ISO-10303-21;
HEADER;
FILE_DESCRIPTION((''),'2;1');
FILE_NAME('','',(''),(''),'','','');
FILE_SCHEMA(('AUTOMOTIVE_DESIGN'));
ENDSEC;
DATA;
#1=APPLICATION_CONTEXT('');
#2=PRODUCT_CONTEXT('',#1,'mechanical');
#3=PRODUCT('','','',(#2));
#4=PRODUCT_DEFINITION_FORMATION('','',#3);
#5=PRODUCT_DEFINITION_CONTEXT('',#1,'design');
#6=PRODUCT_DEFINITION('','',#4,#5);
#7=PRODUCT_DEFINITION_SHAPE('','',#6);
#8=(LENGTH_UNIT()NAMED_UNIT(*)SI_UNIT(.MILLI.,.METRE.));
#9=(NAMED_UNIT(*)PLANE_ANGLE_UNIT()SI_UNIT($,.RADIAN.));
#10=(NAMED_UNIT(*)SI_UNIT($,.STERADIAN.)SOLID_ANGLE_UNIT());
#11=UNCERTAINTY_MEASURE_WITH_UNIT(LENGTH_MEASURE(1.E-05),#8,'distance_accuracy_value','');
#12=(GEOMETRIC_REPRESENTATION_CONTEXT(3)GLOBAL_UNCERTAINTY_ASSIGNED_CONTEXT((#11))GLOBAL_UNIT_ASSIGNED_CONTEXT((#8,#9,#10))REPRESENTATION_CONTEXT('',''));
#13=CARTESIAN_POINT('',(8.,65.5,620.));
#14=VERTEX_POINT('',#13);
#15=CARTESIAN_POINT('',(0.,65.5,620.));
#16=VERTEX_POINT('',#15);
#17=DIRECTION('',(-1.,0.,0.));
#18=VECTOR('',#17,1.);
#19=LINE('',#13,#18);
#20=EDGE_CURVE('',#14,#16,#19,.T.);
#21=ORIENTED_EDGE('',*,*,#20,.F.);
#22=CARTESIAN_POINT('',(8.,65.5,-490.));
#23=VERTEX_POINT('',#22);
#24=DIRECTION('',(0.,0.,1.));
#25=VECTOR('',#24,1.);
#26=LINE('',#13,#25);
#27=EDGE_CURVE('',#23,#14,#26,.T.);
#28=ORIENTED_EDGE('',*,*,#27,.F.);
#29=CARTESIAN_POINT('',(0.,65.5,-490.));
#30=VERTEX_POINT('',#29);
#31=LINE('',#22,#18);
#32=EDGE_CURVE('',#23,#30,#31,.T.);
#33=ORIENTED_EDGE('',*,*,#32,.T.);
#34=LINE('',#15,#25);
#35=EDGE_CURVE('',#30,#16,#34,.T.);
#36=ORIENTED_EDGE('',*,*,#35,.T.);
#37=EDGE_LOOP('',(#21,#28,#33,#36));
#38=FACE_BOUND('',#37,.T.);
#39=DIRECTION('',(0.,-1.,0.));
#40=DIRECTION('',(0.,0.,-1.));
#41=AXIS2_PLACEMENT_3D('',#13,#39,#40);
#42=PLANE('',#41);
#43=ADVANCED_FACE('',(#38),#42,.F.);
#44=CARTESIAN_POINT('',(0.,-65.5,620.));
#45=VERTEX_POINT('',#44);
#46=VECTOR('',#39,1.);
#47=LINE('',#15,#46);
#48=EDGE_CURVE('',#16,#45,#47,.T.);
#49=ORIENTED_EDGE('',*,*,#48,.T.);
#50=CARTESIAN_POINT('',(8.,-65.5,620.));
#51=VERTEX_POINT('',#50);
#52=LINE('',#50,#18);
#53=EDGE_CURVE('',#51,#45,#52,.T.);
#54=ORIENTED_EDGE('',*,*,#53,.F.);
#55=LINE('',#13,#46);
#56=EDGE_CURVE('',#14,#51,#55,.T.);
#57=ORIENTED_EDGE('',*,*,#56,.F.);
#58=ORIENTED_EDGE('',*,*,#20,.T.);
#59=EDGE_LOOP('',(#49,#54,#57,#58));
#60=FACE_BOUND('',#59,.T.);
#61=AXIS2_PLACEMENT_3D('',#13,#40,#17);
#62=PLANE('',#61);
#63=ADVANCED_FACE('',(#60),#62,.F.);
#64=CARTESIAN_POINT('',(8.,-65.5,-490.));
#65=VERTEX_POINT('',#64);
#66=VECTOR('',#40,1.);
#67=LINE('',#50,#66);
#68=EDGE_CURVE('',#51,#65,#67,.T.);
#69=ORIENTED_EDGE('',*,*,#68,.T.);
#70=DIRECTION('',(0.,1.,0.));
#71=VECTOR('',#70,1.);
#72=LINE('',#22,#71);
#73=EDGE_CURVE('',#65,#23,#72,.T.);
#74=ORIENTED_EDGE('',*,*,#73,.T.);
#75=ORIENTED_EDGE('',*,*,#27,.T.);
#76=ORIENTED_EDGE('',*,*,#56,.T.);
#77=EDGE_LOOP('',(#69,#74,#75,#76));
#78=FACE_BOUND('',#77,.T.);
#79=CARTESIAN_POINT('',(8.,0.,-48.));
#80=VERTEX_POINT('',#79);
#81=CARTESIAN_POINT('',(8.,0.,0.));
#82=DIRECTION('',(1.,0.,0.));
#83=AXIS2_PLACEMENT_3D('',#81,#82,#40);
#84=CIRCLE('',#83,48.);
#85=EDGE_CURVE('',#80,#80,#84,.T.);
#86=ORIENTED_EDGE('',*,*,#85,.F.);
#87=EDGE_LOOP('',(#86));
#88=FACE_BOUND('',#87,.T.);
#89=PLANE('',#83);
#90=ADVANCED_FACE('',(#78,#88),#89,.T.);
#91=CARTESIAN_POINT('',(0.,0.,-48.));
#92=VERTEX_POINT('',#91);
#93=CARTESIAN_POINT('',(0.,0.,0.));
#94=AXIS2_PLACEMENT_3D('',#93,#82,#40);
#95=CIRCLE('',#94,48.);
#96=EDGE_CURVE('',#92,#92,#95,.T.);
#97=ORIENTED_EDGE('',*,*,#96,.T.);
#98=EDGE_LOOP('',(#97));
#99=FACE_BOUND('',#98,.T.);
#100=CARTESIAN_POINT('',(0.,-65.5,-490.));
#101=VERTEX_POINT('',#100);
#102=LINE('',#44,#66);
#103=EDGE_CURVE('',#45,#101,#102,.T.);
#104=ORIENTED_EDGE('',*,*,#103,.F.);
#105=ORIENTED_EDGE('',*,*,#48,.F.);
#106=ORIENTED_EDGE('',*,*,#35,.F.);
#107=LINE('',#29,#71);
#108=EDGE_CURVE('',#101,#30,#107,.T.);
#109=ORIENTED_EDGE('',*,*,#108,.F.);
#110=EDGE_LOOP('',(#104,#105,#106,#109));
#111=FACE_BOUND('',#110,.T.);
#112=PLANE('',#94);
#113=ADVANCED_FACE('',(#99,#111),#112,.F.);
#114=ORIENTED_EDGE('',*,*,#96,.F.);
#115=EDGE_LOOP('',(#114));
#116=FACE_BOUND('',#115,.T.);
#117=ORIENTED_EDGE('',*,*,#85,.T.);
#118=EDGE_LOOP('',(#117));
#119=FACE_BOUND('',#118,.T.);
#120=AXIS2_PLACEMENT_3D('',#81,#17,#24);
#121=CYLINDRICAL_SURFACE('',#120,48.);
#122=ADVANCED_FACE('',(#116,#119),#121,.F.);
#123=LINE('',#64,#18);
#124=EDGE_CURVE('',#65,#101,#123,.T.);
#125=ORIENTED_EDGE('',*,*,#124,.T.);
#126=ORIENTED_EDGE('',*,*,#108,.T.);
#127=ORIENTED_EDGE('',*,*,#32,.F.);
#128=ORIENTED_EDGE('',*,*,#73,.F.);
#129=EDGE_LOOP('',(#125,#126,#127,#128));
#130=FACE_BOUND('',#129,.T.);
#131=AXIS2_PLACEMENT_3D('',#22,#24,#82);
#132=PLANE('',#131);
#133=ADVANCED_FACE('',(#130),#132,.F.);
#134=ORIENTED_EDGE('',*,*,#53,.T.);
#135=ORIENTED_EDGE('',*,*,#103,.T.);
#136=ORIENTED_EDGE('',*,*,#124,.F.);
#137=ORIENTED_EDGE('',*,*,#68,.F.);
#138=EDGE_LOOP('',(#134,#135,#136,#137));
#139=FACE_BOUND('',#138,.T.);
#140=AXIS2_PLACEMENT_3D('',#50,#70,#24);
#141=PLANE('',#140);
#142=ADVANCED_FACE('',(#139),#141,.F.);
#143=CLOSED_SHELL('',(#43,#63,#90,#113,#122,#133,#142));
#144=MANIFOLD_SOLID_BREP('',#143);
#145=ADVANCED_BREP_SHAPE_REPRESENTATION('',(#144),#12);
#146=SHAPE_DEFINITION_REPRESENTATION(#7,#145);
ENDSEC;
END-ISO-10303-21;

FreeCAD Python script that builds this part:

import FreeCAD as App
import Part
import Sketcher

doc = App.newDocument("Part")
params = doc.addObject("Spreadsheet::Sheet", "Params")
for row, (alias, value) in enumerate([
    ("sketch1_diameter", "96 mm"),
    ("sketch1_width", "131 mm"),
    ("sketch1_height", "1110 mm"),
    ("pad1_length", "8 mm"),
], start=1):
    params.set(f"A{row}", alias)
    params.set(f"B{row}", "=" + value)
    params.setAlias(f"B{row}", alias)

body = doc.addObject("PartDesign::Body", "Body")

sketch1 = body.newObject("Sketcher::SketchObject", "Sketch")
sketch1.AttachmentSupport = (doc.getObject("YZ_Plane"), [""])
sketch1.MapMode = "FlatFace"
sketch1.addGeometry([
    Part.LineSegment(App.Vector(66, 620, 0), App.Vector(-66, 620, 0)),
    Part.LineSegment(App.Vector(-66, 620, 0), App.Vector(-66, -490, 0)),
    Part.LineSegment(App.Vector(-66, -490, 0), App.Vector(66, -490, 0)),
    Part.LineSegment(App.Vector(66, -490, 0), App.Vector(66, 620, 0)),
    Part.Circle(App.Vector(0, 0, 0), App.Vector(0, 0, 1), 48),
], False)
sketch1.addConstraint([
    Sketcher.Constraint("Coincident", 0, 2, 1, 1),
    Sketcher.Constraint("Coincident", 1, 2, 2, 1),
    Sketcher.Constraint("Coincident", 2, 2, 3, 1),
    Sketcher.Constraint("Coincident", 3, 2, 0, 1),
    Sketcher.Constraint("Horizontal", 0),
    Sketcher.Constraint("Vertical", 1),
    Sketcher.Constraint("Horizontal", 2),
    Sketcher.Constraint("Vertical", 3),
    Sketcher.Constraint("Coincident", 4, 3, -1, 1),
    Sketcher.Constraint("Diameter", 4, 96.0),
    Sketcher.Constraint("DistanceX", 0, 2, 0, 1, 131.0),
    Sketcher.Constraint("DistanceY", 1, 2, 1, 1, 1110.0),
    Sketcher.Constraint("DistanceY", -1, 1, 0, 2, 620.0),
    Sketcher.Constraint("DistanceX", 0, 2, -1, 1, 65.5),
])
sketch1.setExpression("Constraints[9]", "Params.sketch1_diameter")
sketch1.setExpression("Constraints[10]", "Params.sketch1_width")
sketch1.setExpression("Constraints[11]", "Params.sketch1_height")
pad1 = body.newObject("PartDesign::Pad", "Pad")
pad1.Profile = sketch1
pad1.setExpression("Length", "Params.pad1_length")

doc.recompute()
